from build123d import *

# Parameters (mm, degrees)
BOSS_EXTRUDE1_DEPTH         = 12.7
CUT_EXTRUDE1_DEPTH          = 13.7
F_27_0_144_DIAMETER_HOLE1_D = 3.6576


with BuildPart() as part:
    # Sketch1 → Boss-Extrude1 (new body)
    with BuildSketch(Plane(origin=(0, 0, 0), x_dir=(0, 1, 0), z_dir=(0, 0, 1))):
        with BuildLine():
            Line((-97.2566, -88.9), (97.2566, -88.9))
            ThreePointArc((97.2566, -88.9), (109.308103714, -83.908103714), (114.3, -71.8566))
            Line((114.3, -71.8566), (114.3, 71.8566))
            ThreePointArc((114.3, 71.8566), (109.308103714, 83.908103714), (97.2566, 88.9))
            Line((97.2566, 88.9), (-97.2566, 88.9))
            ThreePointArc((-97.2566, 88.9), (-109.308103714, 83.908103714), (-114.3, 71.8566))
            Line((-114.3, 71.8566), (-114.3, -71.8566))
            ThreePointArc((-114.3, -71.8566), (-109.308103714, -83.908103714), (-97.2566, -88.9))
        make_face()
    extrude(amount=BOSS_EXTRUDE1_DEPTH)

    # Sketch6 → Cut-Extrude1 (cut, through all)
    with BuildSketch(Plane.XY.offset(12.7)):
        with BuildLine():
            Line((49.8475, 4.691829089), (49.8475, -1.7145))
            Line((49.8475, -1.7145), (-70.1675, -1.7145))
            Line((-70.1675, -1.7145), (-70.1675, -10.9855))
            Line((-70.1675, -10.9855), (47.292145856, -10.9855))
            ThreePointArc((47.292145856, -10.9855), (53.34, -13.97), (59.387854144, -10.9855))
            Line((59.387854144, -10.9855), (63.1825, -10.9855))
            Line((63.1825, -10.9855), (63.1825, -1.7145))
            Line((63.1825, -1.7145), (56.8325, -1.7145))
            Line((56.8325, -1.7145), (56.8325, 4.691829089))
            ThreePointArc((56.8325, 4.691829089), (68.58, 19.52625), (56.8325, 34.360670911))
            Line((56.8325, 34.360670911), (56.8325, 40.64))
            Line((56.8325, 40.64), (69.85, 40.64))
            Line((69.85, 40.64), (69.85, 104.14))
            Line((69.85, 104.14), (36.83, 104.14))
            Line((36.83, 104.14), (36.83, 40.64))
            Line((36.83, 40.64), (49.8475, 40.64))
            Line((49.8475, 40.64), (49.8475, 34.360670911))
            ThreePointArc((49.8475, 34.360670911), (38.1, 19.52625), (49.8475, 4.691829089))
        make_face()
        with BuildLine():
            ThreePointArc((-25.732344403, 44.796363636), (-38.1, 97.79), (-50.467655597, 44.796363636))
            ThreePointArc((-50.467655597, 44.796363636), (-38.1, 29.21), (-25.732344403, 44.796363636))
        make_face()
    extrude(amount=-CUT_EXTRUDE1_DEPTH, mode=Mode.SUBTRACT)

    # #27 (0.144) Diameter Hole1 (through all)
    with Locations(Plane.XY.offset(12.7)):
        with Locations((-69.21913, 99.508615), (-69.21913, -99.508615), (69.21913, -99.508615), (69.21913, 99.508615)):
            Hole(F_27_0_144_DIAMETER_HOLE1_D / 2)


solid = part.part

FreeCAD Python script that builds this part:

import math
import FreeCAD as App
import Part
import Sketcher

V = App.Vector
Q = App.Units.Quantity

doc = App.newDocument("Part")
body = doc.addObject("PartDesign::Body", "Body")

sketch1 = body.newObject("Sketcher::SketchObject", "Sketch")
sketch1.AttachmentSupport = (doc.getObject("XY_Plane"), [""])
sketch1.MapMode = "FlatFace"
sketch1.addGeometry([
    Part.LineSegment(V(89, -97, 0), V(89, 97, 0)),
    Part.ArcOfCircle(Part.Circle(V(72, 97, 0), V(0, 0, 1), 17), math.radians(0), math.radians(90)),
    Part.LineSegment(V(72, 114, 0), V(-72, 114, 0)),
    Part.ArcOfCircle(Part.Circle(V(-72, 97, 0), V(0, 0, 1), 17), math.radians(90), math.radians(180)),
    Part.LineSegment(V(-89, 97, 0), V(-89, -97, 0)),
    Part.ArcOfCircle(Part.Circle(V(-72, -97, 0), V(0, 0, 1), 17), math.radians(-180), math.radians(-90)),
    Part.LineSegment(V(-72, -114, 0), V(72, -114, 0)),
    Part.ArcOfCircle(Part.Circle(V(72, -97, 0), V(0, 0, 1), 17), math.radians(-90), math.radians(0)),
], False)
sketch1.addConstraint([
    Sketcher.Constraint("Tangent", 0, 2, 1, 1),
    Sketcher.Constraint("Tangent", 1, 2, 2, 1),
    Sketcher.Constraint("Tangent", 2, 2, 3, 1),
    Sketcher.Constraint("Tangent", 3, 2, 4, 1),
    Sketcher.Constraint("Tangent", 4, 2, 5, 1),
    Sketcher.Constraint("Tangent", 5, 2, 6, 1),
    Sketcher.Constraint("Tangent", 6, 2, 7, 1),
    Sketcher.Constraint("Tangent", 7, 2, 0, 1),
    Sketcher.Constraint("Vertical", 0),
    Sketcher.Constraint("Horizontal", 2),
    Sketcher.Constraint("Vertical", 4),
    Sketcher.Constraint("Horizontal", 6),
    Sketcher.Constraint("Equal", 1, 3),
    Sketcher.Constraint("Equal", 3, 5),
    Sketcher.Constraint("Equal", 5, 7),
    Sketcher.Constraint("Symmetric", 1, 3, 5, 3, -1, 1),
    Sketcher.Constraint("Radius", 1, Q("0.671 in")),
    Sketcher.Constraint("DistanceX", 3, 2, 0, 2, Q("7 in")),
    Sketcher.Constraint("DistanceY", -1, 1, 1, 2, Q("4.5 in")),
])
pad1 = body.newObject("PartDesign::Pad", "Pad")
pad1.Profile = sketch1
pad1.Length = Q("0.5 in")

sketch2 = body.newObject("Sketcher::SketchObject", "Sketch001")
sketch2.AttachmentSupport = (doc.getObject("XY_Plane"), [""])
sketch2.MapMode = "FlatFace"
sketch2.AttachmentOffset = App.Placement(V(0, 0, 0.5 * 25.4), App.Rotation())
sketch2.addGeometry([
    Part.LineSegment(V(49.8, 4.7, 0), V(49.8, -1.7, 0)),
    Part.LineSegment(V(49.8, -1.7, 0), V(-70.2, -1.7, 0)),
    Part.LineSegment(V(-70.2, -1.7, 0), V(-70.2, -11, 0)),
    Part.LineSegment(V(-70.2, -11, 0), V(47.3, -11, 0)),
    Part.ArcOfCircle(Part.Circle(V(53.3, -6.3, 0), V(0, 0, 1), 7.6), math.radians(-143), math.radians(-37)),
    Part.LineSegment(V(59.4, -11, 0), V(63.2, -11, 0)),
    Part.LineSegment(V(63.2, -11, 0), V(63.2, -1.7, 0)),
    Part.LineSegment(V(63.2, -1.7, 0), V(56.8, -1.7, 0)),
    Part.LineSegment(V(56.8, -1.7, 0), V(56.8, 4.7, 0)),
    Part.ArcOfCircle(Part.Circle(V(53.3, 19.5, 0), V(0, 0, 1), 15.2), math.radians(-77), math.radians(77)),
    Part.LineSegment(V(56.8, 34.4, 0), V(56.8, 40.6, 0)),
    Part.LineSegment(V(56.8, 40.6, 0), V(69.8, 40.6, 0)),
    Part.LineSegment(V(69.8, 40.6, 0), V(69.8, 104.1, 0)),
    Part.LineSegment(V(69.8, 104.1, 0), V(36.8, 104.1, 0)),
    Part.LineSegment(V(36.8, 104.1, 0), V(36.8, 40.6, 0)),
    Part.LineSegment(V(36.8, 40.6, 0), V(49.8, 40.6, 0)),
    Part.LineSegment(V(49.8, 40.6, 0), V(49.8, 34.4, 0)),
    Part.ArcOfCircle(Part.Circle(V(53.3, 19.5, 0), V(0, 0, 1), 15.2), math.radians(103), math.radians(257)),
    Part.ArcOfCircle(Part.Circle(V(-38.1, 69.8, 0), V(0, 0, 1), 27.9), math.radians(-64), math.radians(244)),
    Part.ArcOfCircle(Part.Circle(V(-38.1, 41.9, 0), V(0, 0, 1), 12.7), math.radians(167), math.radians(373)),
], False)
sketch2.addConstraint([
    Sketcher.Constraint("Coincident", 0, 2, 1, 1),
    Sketcher.Constraint("Coincident", 1, 2, 2, 1),
    Sketcher.Constraint("Coincident", 2, 2, 3, 1),
    Sketcher.Constraint("Coincident", 3, 2, 4, 1),
    Sketcher.Constraint("Coincident", 4, 2, 5, 1),
    Sketcher.Constraint("Coincident", 5, 2, 6, 1),
    Sketcher.Constraint("Coincident", 6, 2, 7, 1),
    Sketcher.Constraint("Coincident", 7, 2, 8, 1),
    Sketcher.Constraint("Coincident", 8, 2, 9, 1),
    Sketcher.Constraint("Coincident", 9, 2, 10, 1),
    Sketcher.Constraint("Coincident", 10, 2, 11, 1),
    Sketcher.Constraint("Coincident", 11, 2, 12, 1),
    Sketcher.Constraint("Coincident", 12, 2, 13, 1),
    Sketcher.Constraint("Coincident", 13, 2, 14, 1),
    Sketcher.Constraint("Coincident", 14, 2, 15, 1),
    Sketcher.Constraint("Coincident", 15, 2, 16, 1),
    Sketcher.Constraint("Coincident", 16, 2, 17, 1),
    Sketcher.Constraint("Coincident", 17, 2, 0, 1),
    Sketcher.Constraint("Coincident", 18, 1, 19, 2),
    Sketcher.Constraint("Coincident", 19, 1, 18, 2),
    Sketcher.Constraint("Vertical", 0),
    Sketcher.Constraint("Horizontal", 1),
    Sketcher.Constraint("Vertical", 2),
    Sketcher.Constraint("Horizontal", 3),
    Sketcher.Constraint("Horizontal", 5),
    Sketcher.Constraint("Vertical", 6),
    Sketcher.Constraint("Horizontal", 7),
    Sketcher.Constraint("Vertical", 8),
    Sketcher.Constraint("Vertical", 10),
    Sketcher.Constraint("Horizontal", 11),
    Sketcher.Constraint("Vertical", 12),
    Sketcher.Constraint("Horizontal", 13),
    Sketcher.Constraint("Vertical", 14),
    Sketcher.Constraint("Horizontal", 15),
    Sketcher.Constraint("Vertical", 16),
    Sketcher.Constraint("Coincident", 17, 3, 9, 3),
    Sketcher.Constraint("Equal", 9, 17),
    Sketcher.Constraint("Horizontal", 3, 2, 4, 2),
    Sketcher.Constraint("Horizontal", 1, 2, 6, 2),
    Sketcher.Constraint("Horizontal", 11, 2, 14, 2),
    Sketcher.Constraint("Horizontal", 9, 2, 16, 2),
    Sketcher.Constraint("Horizontal", 8, 2, 17, 2),
    Sketcher.Constraint("Horizontal", 18, 1, 19, 1),
    Sketcher.Constraint("Vertical", 4, 3, 9, 3),
    Sketcher.Constraint("Vertical", 8, 2, 9, 2),
    Sketcher.Constraint("Equal", 11, 15),
    Sketcher.Constraint("Radius", 4, Q("0.3 in")),
    Sketcher.Constraint("Radius", 9, Q("0.6 in")),
    Sketcher.Constraint("Radius", 18, Q("1.1 in")),
    Sketcher.Constraint("Radius", 19, Q("0.5 in")),
    Sketcher.Constraint("DistanceX", 13, 2, 13, 1, Q("1.3 in")),
    Sketcher.Constraint("DistanceY", 12, 1, 12, 2, Q("2.5 in")),
    Sketcher.Constraint("DistanceY", 4, 3, 18, 3, Q("3 in")),
    Sketcher.Constraint("DistanceX", 7, 2, 7, 1, Q("0.25 in")),
    Sketcher.Constraint("DistanceX", -1, 1, 4, 3, Q("2.1 in")),
    Sketcher.Constraint("DistanceX", 18, 3, -1, 1, Q("1.5 in")),
    Sketcher.Constraint("DistanceY", -1, 1, 10, 2, Q("1.6 in")),
    Sketcher.Constraint("DistanceY", 19, 3, 18, 3, Q("1.1 in")),
    Sketcher.Constraint("DistanceX", 1, 2, 1, 1, Q("4.725 in")),
    Sketcher.Constraint("DistanceY", 2, 2, 2, 1, Q("0.365 in")),
    Sketcher.Constraint("DistanceY", 4, 3, -1, 1, Q("0.25 in")),
    Sketcher.Constraint("DistanceX", 11, 1, 11, 2, Q("0.5125 in")),
    Sketcher.Constraint("DistanceY", 0, 2, -1, 1, Q("0.0675 in")),
    Sketcher.Constraint("DistanceY", 0, 2, 0, 1, 6.406329),
])
pocket1 = body.newObject("PartDesign::Pocket", "Pocket")
pocket1.Profile = sketch2
pocket1.Type = "ThroughAll"

sketch3 = body.newObject("Sketcher::SketchObject", "Sketch002")
sketch3.AttachmentSupport = (doc.getObject("XY_Plane"), [""])
sketch3.MapMode = "FlatFace"
sketch3.AttachmentOffset = App.Placement(V(0, 0, 0.5 * 25.4), App.Rotation())
sketch3.addGeometry([
    Part.Circle(V(-69.2, 99.5, 0), V(0, 0, 1), 1.8),
    Part.Circle(V(-69.2, -99.5, 0), V(0, 0, 1), 1.8),
    Part.Circle(V(69.2, -99.5, 0), V(0, 0, 1), 1.8),
    Part.Circle(V(69.2, 99.5, 0), V(0, 0, 1), 1.8),
], False)
sketch3.addConstraint([
    Sketcher.Constraint("Equal", 0, 1),
    Sketcher.Constraint("Equal", 1, 2),
    Sketcher.Constraint("Equal", 2, 3),
    Sketcher.Constraint("Symmetric", 0, 3, 2, 3, -1, 1),
    Sketcher.Constraint("Symmetric", 1, 3, 3, 3, -1, 1),
    Sketcher.Constraint("Symmetric", 1, 3, 2, 3, -2),
    Sketcher.Constraint("Diameter", 0, Q("0.144 in")),
    Sketcher.Constraint("DistanceX", 0, 3, -1, 1, 69.21913),
    Sketcher.Constraint("DistanceY", 1, 3, 0, 3, 199.01723),
])
doc.recompute()
hole = body.newObject("PartDesign::Hole", "Hole")
hole.Profile = sketch3
hole.ThreadType = "None"
hole.Diameter = Q("0.144 in")
hole.DepthType = "ThroughAll"

doc.recompute()
